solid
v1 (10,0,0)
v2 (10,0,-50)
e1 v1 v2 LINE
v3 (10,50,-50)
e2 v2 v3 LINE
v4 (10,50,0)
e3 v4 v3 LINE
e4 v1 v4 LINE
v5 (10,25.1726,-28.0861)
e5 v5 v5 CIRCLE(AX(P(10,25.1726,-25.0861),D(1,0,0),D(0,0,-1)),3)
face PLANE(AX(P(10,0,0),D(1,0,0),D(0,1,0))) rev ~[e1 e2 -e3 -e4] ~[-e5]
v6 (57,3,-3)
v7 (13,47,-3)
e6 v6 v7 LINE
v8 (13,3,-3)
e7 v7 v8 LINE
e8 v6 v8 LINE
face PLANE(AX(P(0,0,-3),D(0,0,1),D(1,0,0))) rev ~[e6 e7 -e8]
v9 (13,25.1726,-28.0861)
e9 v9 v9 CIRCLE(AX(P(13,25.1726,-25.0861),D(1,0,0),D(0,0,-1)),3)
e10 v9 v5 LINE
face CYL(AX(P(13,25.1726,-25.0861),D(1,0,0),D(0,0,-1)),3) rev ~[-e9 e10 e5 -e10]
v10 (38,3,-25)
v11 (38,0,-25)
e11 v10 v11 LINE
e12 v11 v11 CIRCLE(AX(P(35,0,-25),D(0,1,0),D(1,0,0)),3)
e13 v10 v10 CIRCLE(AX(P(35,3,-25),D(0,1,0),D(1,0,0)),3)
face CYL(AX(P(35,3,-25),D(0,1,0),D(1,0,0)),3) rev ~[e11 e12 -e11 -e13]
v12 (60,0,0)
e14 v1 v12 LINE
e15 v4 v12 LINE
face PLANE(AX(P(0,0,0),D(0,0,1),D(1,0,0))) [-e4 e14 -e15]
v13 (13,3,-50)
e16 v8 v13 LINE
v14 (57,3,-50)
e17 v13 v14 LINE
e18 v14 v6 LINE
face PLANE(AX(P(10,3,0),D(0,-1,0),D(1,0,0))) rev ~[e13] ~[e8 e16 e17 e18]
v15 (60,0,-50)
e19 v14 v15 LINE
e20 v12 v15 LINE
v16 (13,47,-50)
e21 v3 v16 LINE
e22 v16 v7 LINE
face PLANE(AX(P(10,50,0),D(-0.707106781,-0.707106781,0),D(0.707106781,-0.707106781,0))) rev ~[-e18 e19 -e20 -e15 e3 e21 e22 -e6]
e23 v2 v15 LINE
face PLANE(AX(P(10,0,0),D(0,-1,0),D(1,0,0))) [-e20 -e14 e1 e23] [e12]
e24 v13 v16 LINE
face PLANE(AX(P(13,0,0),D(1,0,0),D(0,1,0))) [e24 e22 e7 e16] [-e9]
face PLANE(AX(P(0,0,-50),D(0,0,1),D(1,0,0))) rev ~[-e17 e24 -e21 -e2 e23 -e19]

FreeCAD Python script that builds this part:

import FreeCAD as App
import Part
import Sketcher
Q = App.Units.Quantity


def faces_at(feature, points):
    """Names of the faces that lie closest to the given points."""
    faces = feature.Shape.Faces
    near = lambda p: min(range(len(faces)), key=lambda i: faces[i].distToShape(Part.Vertex(*p))[0])
    return sorted({f"Face{near(p) + 1}" for p in points})

doc = App.newDocument("Part")
body = doc.addObject("PartDesign::Body", "Body")

# Sketch on XY plane
sketch1 = body.newObject("Sketcher::SketchObject", "Sketch")
sketch1.AttachmentSupport = (doc.getObject("XY_Plane"), [""])
sketch1.MapMode = "FlatFace"
sketch1.addGeometry(Part.LineSegment(App.Vector(10, 50, 0), App.Vector(10, 0, 0)), False)
sketch1.addGeometry(Part.LineSegment(App.Vector(10, 0, 0), App.Vector(60, 0, 0)), False)
sketch1.addGeometry(Part.LineSegment(App.Vector(60, 0, 0), App.Vector(10, 50, 0)), False)
sketch1.addConstraint(Sketcher.Constraint("Coincident", 0, 2, 1, 1))
sketch1.addConstraint(Sketcher.Constraint("Coincident", 1, 2, 2, 1))
sketch1.addConstraint(Sketcher.Constraint("Coincident", 2, 2, 0, 1))
sketch1.addConstraint(Sketcher.Constraint("Vertical", 0))
sketch1.addConstraint(Sketcher.Constraint("Horizontal", 1))
sketch1.addConstraint(Sketcher.Constraint("PointOnObject", 0, 2, -1))
sketch1.addConstraint(Sketcher.Constraint("Equal", 1, 0))
sketch1.addConstraint(Sketcher.Constraint("DistanceX", 1, 1, 1, 2, Q("50 mm")))
sketch1.addConstraint(Sketcher.Constraint("DistanceX", -1, 1, 0, 2, Q("10 mm")))
pad1 = body.newObject("PartDesign::Pad", "Pad")
pad1.Profile = sketch1
pad1.Length = 50
pad1.Reversed = True
doc.recompute()

thickness = body.newObject("PartDesign::Thickness", "Thickness")
thickness.Base = (pad1, faces_at(pad1, [(43.333, 16.667, -16.667), (26.667, 16.667, -50)]))
thickness.Value = 3
thickness.Reversed = True
thickness.Join = "Intersection"

# Sketch on XZ plane
sketch2 = body.newObject("Sketcher::SketchObject", "Sketch001")
sketch2.AttachmentSupport = (doc.getObject("XZ_Plane"), [""])
sketch2.MapMode = "FlatFace"
sketch2.AttachmentOffset = App.Placement(App.Vector(0, 0, -3), App.Rotation())
sketch2.addGeometry(Part.Circle(App.Vector(35, -25, 0), App.Vector(0, 0, 1), 3), False)
sketch2.addConstraint(Sketcher.Constraint("Diameter", 0, Q("6 mm")))
sketch2.addConstraint(Sketcher.Constraint("DistanceX", -1, 1, 0, 3, Q("35 mm")))
sketch2.addConstraint(Sketcher.Constraint("DistanceY", 0, 3, -1, 1, Q("25 mm")))
pocket1 = body.newObject("PartDesign::Pocket", "Pocket")
pocket1.Profile = sketch2
pocket1.Type = "ThroughAll"
pocket1.Reversed = True

# Sketch on YZ plane
sketch3 = body.newObject("Sketcher::SketchObject", "Sketch002")
sketch3.AttachmentSupport = (doc.getObject("YZ_Plane"), [""])
sketch3.MapMode = "FlatFace"
sketch3.AttachmentOffset = App.Placement(App.Vector(0, 0, 13), App.Rotation())
sketch3.addGeometry(Part.Circle(App.Vector(25.2, -25.1, 0), App.Vector(0, 0, 1), 3), False)
sketch3.addConstraint(Sketcher.Constraint("Diameter", 0, Q("6 mm")))
sketch3.addConstraint(Sketcher.Constraint("DistanceY", 0, 3, -1, 1, Q("25.086 mm")))
sketch3.addConstraint(Sketcher.Constraint("DistanceX", -1, 1, 0, 3, Q("25.1726 mm")))
pocket2 = body.newObject("PartDesign::Pocket", "Pocket001")
pocket2.Profile = sketch3
pocket2.Type = "ThroughAll"

doc.recompute()
